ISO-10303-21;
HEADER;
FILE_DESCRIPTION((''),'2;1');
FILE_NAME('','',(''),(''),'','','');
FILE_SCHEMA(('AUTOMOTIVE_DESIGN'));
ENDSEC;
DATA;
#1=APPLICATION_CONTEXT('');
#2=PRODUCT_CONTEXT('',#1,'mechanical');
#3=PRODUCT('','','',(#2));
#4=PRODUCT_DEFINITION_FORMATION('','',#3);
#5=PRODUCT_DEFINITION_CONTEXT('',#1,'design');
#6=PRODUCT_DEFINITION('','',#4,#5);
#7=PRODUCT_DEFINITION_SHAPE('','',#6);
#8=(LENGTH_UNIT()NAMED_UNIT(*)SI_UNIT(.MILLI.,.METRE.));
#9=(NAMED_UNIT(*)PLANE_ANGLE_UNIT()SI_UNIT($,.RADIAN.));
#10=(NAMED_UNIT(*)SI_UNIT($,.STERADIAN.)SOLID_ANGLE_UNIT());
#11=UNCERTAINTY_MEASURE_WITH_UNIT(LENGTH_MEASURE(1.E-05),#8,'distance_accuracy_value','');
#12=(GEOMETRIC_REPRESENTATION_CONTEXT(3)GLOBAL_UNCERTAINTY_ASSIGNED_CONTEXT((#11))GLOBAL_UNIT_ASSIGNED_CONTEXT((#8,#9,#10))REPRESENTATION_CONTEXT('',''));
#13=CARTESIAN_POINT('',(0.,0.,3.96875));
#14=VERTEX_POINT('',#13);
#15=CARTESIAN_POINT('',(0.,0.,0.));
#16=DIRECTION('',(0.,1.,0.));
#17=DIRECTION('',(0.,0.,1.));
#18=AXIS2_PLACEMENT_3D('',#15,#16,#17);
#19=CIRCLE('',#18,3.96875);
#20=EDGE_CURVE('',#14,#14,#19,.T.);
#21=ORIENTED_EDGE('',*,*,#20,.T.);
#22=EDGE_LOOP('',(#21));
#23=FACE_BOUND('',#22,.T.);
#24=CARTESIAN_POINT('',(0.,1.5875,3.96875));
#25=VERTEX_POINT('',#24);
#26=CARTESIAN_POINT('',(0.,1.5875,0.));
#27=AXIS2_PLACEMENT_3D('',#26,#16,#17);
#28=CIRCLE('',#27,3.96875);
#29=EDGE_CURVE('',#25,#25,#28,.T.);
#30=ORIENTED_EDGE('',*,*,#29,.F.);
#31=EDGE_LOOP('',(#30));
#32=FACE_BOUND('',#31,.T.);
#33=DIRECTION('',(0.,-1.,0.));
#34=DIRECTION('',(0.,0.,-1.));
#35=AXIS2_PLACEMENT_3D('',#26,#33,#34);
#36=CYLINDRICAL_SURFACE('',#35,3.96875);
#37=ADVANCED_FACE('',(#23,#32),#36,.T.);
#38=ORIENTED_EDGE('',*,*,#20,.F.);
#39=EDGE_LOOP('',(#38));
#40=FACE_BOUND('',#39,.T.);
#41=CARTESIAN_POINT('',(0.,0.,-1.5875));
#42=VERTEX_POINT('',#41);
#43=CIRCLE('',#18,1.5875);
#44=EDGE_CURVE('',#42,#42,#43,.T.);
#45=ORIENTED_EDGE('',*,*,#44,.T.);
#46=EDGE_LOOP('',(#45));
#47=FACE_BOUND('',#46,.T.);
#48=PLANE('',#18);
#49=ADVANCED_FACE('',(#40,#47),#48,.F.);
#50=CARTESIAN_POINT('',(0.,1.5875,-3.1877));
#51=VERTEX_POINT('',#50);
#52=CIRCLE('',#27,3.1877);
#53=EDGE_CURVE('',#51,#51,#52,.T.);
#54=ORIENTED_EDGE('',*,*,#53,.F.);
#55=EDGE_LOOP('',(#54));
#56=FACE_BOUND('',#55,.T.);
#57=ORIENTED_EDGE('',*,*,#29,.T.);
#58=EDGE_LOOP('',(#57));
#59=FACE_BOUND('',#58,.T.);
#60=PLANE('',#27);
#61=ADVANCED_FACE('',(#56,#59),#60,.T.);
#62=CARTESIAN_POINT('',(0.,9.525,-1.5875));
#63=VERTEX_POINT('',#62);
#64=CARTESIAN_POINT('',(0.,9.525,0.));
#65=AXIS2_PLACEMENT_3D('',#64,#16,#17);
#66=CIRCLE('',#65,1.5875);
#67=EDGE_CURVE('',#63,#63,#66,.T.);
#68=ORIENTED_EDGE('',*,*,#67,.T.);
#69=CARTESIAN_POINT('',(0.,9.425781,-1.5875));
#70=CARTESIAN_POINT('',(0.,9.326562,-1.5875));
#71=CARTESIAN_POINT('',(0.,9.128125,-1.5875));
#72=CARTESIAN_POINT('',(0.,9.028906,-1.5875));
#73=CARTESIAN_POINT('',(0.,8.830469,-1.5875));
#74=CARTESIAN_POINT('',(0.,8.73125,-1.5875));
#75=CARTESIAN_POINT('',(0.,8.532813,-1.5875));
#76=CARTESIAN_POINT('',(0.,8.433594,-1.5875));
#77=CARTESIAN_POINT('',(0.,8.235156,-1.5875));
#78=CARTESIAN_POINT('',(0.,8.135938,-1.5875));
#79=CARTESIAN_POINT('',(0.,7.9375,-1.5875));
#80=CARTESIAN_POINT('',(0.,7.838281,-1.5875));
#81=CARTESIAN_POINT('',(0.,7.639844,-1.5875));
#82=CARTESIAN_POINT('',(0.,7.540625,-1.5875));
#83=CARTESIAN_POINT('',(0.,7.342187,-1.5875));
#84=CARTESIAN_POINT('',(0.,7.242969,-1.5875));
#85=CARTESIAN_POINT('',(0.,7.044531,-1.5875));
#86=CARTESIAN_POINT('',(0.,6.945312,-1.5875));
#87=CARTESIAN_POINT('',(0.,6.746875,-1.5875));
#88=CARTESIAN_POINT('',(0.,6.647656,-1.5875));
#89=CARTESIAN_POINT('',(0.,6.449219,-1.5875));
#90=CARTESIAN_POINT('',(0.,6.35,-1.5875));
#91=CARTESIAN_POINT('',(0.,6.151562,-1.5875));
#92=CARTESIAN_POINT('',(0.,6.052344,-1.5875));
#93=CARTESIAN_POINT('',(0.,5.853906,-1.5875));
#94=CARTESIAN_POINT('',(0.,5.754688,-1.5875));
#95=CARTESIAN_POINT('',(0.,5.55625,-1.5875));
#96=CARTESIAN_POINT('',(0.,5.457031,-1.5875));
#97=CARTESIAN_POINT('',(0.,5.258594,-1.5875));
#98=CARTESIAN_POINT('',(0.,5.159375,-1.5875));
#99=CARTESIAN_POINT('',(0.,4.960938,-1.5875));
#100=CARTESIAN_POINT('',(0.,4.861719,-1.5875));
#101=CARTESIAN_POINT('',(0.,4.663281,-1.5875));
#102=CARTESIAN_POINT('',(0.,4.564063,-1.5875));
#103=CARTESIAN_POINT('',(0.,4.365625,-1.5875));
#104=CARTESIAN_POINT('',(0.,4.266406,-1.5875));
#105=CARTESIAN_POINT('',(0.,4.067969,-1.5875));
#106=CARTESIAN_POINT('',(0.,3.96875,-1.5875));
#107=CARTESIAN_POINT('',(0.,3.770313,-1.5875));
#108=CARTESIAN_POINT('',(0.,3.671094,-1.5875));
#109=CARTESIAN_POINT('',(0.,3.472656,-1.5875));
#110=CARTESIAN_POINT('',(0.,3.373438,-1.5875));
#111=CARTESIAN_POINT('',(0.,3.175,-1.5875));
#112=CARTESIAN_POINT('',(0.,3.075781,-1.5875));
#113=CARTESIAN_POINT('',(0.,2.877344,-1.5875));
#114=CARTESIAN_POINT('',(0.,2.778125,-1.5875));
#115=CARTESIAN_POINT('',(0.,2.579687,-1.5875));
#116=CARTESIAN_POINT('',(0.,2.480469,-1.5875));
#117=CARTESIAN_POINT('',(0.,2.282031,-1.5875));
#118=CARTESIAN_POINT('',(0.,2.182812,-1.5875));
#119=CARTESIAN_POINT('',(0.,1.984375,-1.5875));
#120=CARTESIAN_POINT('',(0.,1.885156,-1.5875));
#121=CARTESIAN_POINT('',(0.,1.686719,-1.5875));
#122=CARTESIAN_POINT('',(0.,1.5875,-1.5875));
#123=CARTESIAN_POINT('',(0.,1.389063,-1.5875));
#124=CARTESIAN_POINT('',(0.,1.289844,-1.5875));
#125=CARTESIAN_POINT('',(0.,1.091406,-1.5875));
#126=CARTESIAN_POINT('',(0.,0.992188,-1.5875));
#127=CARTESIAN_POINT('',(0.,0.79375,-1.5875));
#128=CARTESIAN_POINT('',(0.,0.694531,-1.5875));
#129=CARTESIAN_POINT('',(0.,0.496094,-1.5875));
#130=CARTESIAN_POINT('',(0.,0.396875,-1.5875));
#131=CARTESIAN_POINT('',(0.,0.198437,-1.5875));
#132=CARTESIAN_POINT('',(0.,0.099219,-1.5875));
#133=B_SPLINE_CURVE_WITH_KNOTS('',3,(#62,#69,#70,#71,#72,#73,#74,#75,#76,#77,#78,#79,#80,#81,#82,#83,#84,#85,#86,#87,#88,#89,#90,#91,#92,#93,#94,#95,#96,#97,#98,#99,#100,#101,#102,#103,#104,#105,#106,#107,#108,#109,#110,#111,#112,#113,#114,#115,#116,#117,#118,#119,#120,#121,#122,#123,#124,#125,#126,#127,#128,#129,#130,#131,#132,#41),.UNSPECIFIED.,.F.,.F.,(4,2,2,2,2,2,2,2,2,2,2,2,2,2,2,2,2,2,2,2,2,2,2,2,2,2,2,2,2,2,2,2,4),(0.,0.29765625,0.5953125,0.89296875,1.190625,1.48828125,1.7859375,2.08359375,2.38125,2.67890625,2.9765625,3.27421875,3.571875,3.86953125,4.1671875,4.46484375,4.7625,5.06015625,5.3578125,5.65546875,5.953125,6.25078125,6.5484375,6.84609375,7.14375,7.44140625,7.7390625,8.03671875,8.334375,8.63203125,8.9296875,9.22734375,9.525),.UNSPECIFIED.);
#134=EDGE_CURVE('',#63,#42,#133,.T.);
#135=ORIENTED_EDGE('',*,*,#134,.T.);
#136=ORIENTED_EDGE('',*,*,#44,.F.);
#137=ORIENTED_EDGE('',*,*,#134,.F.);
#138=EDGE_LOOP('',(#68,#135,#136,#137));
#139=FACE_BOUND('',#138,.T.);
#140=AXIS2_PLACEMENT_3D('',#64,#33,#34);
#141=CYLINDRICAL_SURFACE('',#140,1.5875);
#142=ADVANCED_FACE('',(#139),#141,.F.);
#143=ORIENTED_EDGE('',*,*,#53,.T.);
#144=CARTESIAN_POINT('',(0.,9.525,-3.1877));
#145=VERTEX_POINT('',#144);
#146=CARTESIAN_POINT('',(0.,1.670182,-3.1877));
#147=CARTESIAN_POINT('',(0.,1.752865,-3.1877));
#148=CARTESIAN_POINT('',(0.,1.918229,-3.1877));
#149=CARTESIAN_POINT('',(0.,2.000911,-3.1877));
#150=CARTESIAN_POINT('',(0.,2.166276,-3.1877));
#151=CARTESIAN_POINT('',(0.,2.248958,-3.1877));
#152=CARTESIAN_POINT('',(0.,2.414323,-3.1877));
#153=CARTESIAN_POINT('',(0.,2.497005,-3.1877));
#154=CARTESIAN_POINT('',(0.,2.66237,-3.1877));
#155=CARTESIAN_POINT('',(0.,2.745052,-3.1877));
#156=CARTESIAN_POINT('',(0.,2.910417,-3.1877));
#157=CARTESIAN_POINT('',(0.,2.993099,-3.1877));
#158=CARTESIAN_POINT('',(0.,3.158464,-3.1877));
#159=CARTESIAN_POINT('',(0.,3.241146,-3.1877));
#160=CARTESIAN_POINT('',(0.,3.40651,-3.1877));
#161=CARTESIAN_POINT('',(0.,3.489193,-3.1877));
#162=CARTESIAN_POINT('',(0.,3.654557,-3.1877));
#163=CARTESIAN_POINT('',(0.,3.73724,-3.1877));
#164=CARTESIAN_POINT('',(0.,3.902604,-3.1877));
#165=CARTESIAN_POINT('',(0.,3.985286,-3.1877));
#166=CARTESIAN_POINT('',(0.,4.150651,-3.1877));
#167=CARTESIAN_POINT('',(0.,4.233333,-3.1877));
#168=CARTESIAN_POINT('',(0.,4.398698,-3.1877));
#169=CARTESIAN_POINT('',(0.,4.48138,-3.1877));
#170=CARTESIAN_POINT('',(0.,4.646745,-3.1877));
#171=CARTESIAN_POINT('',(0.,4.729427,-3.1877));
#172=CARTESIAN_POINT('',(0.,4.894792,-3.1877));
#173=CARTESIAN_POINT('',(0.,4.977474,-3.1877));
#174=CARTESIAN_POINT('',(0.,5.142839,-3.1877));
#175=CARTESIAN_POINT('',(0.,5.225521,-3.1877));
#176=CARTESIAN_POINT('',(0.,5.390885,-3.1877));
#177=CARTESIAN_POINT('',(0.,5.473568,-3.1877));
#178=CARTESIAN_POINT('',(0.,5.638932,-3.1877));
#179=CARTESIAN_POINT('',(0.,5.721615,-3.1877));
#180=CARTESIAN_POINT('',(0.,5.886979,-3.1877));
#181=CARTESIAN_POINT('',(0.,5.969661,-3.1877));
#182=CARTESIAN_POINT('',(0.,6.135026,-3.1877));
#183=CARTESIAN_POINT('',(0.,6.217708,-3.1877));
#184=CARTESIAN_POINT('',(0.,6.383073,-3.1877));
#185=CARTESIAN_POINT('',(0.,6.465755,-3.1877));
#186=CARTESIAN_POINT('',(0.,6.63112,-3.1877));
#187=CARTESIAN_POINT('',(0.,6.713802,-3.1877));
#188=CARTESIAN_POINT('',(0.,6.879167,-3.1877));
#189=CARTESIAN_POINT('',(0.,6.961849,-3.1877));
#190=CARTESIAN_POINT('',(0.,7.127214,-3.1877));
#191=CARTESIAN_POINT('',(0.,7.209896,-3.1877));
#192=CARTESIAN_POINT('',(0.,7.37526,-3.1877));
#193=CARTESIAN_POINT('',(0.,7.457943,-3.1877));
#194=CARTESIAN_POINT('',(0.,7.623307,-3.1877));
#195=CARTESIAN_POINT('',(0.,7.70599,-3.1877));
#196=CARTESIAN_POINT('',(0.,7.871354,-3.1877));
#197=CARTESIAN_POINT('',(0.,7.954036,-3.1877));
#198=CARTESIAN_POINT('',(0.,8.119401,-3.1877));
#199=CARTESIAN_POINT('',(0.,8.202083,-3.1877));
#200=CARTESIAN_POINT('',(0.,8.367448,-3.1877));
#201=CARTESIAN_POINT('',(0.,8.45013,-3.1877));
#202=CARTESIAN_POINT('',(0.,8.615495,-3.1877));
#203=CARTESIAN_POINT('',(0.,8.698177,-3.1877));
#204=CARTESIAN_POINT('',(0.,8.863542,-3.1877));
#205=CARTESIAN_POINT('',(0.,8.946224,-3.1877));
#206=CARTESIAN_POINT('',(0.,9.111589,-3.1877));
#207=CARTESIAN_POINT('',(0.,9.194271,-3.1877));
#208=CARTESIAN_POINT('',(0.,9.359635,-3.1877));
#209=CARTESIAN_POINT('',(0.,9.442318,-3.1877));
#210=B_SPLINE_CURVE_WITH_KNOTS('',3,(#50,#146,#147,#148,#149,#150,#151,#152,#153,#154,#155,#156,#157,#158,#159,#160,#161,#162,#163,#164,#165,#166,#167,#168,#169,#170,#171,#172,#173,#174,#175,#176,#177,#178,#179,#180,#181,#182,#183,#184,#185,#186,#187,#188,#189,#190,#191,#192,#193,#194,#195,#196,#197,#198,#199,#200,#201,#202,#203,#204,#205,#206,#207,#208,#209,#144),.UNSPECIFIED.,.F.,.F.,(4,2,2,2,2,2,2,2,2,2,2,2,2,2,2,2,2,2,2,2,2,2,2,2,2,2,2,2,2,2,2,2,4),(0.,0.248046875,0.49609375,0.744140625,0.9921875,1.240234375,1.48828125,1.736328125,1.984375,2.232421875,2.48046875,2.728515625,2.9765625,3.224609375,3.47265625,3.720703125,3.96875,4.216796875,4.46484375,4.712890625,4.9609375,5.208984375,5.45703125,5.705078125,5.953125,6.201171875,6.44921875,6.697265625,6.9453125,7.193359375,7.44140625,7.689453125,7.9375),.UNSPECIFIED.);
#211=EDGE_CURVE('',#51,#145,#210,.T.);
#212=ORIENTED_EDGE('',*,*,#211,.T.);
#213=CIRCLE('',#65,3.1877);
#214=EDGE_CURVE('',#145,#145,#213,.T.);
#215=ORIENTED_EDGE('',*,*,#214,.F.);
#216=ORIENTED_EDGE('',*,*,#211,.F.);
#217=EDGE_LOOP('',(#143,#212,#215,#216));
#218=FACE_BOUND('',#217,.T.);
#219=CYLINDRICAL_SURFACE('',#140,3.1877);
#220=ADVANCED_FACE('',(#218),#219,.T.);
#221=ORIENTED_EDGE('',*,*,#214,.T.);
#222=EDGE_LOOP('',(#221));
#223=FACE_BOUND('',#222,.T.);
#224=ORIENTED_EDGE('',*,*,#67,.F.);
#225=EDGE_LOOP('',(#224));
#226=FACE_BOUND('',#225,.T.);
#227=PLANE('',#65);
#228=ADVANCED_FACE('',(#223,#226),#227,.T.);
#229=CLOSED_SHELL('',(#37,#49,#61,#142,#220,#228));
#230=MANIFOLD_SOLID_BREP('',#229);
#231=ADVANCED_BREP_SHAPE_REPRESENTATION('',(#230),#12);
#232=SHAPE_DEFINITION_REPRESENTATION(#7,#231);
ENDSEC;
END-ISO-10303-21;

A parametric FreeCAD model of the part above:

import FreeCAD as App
import Part
import Sketcher
Q = App.Units.Quantity

doc = App.newDocument("Part")
body = doc.addObject("PartDesign::Body", "Body")

# Sketch on XZ plane
sketch1 = body.newObject("Sketcher::SketchObject", "Sketch")
sketch1.AttachmentSupport = (doc.getObject("XZ_Plane"), [""])
sketch1.MapMode = "FlatFace"
sketch1.addGeometry(Part.Circle(App.Vector(0, 0, 0), App.Vector(0, 0, 1), 3.2), False)
sketch1.addGeometry(Part.Circle(App.Vector(0, 0, 0), App.Vector(0, 0, 1), 1.6), False)
sketch1.addConstraint(Sketcher.Constraint("Coincident", 0, 3, -1, 1))
sketch1.addConstraint(Sketcher.Constraint("Coincident", 1, 3, -1, 1))
sketch1.addConstraint(Sketcher.Constraint("Diameter", 0, Q("0.251 in")))
sketch1.addConstraint(Sketcher.Constraint("Diameter", 1, Q("0.125 in")))
pad1 = body.newObject("PartDesign::Pad", "Pad")
pad1.Profile = sketch1
pad1.Length = Q("0.375 in")
pad1.Reversed = True

# Sketch on XZ plane
sketch2 = body.newObject("Sketcher::SketchObject", "Sketch001")
sketch2.AttachmentSupport = (doc.getObject("XZ_Plane"), [""])
sketch2.MapMode = "FlatFace"
sketch2.addGeometry(Part.Circle(App.Vector(0, 0, 0), App.Vector(0, 0, 1), 4), False)
sketch2.addGeometry(Part.Circle(App.Vector(0, 0, 0), App.Vector(0, 0, 1), 3.2), False)
sketch2.addConstraint(Sketcher.Constraint("Coincident", 0, 3, -1, 1))
sketch2.addConstraint(Sketcher.Constraint("Coincident", 1, 3, -1, 1))
sketch2.addConstraint(Sketcher.Constraint("Diameter", 0, Q("0.3125 in")))
sketch2.addConstraint(Sketcher.Constraint("Diameter", 1, Q("0.251 in")))
pad2 = body.newObject("PartDesign::Pad", "Pad001")
pad2.Profile = sketch2
pad2.Length = Q("0.0625 in")
pad2.Reversed = True

doc.recompute()
